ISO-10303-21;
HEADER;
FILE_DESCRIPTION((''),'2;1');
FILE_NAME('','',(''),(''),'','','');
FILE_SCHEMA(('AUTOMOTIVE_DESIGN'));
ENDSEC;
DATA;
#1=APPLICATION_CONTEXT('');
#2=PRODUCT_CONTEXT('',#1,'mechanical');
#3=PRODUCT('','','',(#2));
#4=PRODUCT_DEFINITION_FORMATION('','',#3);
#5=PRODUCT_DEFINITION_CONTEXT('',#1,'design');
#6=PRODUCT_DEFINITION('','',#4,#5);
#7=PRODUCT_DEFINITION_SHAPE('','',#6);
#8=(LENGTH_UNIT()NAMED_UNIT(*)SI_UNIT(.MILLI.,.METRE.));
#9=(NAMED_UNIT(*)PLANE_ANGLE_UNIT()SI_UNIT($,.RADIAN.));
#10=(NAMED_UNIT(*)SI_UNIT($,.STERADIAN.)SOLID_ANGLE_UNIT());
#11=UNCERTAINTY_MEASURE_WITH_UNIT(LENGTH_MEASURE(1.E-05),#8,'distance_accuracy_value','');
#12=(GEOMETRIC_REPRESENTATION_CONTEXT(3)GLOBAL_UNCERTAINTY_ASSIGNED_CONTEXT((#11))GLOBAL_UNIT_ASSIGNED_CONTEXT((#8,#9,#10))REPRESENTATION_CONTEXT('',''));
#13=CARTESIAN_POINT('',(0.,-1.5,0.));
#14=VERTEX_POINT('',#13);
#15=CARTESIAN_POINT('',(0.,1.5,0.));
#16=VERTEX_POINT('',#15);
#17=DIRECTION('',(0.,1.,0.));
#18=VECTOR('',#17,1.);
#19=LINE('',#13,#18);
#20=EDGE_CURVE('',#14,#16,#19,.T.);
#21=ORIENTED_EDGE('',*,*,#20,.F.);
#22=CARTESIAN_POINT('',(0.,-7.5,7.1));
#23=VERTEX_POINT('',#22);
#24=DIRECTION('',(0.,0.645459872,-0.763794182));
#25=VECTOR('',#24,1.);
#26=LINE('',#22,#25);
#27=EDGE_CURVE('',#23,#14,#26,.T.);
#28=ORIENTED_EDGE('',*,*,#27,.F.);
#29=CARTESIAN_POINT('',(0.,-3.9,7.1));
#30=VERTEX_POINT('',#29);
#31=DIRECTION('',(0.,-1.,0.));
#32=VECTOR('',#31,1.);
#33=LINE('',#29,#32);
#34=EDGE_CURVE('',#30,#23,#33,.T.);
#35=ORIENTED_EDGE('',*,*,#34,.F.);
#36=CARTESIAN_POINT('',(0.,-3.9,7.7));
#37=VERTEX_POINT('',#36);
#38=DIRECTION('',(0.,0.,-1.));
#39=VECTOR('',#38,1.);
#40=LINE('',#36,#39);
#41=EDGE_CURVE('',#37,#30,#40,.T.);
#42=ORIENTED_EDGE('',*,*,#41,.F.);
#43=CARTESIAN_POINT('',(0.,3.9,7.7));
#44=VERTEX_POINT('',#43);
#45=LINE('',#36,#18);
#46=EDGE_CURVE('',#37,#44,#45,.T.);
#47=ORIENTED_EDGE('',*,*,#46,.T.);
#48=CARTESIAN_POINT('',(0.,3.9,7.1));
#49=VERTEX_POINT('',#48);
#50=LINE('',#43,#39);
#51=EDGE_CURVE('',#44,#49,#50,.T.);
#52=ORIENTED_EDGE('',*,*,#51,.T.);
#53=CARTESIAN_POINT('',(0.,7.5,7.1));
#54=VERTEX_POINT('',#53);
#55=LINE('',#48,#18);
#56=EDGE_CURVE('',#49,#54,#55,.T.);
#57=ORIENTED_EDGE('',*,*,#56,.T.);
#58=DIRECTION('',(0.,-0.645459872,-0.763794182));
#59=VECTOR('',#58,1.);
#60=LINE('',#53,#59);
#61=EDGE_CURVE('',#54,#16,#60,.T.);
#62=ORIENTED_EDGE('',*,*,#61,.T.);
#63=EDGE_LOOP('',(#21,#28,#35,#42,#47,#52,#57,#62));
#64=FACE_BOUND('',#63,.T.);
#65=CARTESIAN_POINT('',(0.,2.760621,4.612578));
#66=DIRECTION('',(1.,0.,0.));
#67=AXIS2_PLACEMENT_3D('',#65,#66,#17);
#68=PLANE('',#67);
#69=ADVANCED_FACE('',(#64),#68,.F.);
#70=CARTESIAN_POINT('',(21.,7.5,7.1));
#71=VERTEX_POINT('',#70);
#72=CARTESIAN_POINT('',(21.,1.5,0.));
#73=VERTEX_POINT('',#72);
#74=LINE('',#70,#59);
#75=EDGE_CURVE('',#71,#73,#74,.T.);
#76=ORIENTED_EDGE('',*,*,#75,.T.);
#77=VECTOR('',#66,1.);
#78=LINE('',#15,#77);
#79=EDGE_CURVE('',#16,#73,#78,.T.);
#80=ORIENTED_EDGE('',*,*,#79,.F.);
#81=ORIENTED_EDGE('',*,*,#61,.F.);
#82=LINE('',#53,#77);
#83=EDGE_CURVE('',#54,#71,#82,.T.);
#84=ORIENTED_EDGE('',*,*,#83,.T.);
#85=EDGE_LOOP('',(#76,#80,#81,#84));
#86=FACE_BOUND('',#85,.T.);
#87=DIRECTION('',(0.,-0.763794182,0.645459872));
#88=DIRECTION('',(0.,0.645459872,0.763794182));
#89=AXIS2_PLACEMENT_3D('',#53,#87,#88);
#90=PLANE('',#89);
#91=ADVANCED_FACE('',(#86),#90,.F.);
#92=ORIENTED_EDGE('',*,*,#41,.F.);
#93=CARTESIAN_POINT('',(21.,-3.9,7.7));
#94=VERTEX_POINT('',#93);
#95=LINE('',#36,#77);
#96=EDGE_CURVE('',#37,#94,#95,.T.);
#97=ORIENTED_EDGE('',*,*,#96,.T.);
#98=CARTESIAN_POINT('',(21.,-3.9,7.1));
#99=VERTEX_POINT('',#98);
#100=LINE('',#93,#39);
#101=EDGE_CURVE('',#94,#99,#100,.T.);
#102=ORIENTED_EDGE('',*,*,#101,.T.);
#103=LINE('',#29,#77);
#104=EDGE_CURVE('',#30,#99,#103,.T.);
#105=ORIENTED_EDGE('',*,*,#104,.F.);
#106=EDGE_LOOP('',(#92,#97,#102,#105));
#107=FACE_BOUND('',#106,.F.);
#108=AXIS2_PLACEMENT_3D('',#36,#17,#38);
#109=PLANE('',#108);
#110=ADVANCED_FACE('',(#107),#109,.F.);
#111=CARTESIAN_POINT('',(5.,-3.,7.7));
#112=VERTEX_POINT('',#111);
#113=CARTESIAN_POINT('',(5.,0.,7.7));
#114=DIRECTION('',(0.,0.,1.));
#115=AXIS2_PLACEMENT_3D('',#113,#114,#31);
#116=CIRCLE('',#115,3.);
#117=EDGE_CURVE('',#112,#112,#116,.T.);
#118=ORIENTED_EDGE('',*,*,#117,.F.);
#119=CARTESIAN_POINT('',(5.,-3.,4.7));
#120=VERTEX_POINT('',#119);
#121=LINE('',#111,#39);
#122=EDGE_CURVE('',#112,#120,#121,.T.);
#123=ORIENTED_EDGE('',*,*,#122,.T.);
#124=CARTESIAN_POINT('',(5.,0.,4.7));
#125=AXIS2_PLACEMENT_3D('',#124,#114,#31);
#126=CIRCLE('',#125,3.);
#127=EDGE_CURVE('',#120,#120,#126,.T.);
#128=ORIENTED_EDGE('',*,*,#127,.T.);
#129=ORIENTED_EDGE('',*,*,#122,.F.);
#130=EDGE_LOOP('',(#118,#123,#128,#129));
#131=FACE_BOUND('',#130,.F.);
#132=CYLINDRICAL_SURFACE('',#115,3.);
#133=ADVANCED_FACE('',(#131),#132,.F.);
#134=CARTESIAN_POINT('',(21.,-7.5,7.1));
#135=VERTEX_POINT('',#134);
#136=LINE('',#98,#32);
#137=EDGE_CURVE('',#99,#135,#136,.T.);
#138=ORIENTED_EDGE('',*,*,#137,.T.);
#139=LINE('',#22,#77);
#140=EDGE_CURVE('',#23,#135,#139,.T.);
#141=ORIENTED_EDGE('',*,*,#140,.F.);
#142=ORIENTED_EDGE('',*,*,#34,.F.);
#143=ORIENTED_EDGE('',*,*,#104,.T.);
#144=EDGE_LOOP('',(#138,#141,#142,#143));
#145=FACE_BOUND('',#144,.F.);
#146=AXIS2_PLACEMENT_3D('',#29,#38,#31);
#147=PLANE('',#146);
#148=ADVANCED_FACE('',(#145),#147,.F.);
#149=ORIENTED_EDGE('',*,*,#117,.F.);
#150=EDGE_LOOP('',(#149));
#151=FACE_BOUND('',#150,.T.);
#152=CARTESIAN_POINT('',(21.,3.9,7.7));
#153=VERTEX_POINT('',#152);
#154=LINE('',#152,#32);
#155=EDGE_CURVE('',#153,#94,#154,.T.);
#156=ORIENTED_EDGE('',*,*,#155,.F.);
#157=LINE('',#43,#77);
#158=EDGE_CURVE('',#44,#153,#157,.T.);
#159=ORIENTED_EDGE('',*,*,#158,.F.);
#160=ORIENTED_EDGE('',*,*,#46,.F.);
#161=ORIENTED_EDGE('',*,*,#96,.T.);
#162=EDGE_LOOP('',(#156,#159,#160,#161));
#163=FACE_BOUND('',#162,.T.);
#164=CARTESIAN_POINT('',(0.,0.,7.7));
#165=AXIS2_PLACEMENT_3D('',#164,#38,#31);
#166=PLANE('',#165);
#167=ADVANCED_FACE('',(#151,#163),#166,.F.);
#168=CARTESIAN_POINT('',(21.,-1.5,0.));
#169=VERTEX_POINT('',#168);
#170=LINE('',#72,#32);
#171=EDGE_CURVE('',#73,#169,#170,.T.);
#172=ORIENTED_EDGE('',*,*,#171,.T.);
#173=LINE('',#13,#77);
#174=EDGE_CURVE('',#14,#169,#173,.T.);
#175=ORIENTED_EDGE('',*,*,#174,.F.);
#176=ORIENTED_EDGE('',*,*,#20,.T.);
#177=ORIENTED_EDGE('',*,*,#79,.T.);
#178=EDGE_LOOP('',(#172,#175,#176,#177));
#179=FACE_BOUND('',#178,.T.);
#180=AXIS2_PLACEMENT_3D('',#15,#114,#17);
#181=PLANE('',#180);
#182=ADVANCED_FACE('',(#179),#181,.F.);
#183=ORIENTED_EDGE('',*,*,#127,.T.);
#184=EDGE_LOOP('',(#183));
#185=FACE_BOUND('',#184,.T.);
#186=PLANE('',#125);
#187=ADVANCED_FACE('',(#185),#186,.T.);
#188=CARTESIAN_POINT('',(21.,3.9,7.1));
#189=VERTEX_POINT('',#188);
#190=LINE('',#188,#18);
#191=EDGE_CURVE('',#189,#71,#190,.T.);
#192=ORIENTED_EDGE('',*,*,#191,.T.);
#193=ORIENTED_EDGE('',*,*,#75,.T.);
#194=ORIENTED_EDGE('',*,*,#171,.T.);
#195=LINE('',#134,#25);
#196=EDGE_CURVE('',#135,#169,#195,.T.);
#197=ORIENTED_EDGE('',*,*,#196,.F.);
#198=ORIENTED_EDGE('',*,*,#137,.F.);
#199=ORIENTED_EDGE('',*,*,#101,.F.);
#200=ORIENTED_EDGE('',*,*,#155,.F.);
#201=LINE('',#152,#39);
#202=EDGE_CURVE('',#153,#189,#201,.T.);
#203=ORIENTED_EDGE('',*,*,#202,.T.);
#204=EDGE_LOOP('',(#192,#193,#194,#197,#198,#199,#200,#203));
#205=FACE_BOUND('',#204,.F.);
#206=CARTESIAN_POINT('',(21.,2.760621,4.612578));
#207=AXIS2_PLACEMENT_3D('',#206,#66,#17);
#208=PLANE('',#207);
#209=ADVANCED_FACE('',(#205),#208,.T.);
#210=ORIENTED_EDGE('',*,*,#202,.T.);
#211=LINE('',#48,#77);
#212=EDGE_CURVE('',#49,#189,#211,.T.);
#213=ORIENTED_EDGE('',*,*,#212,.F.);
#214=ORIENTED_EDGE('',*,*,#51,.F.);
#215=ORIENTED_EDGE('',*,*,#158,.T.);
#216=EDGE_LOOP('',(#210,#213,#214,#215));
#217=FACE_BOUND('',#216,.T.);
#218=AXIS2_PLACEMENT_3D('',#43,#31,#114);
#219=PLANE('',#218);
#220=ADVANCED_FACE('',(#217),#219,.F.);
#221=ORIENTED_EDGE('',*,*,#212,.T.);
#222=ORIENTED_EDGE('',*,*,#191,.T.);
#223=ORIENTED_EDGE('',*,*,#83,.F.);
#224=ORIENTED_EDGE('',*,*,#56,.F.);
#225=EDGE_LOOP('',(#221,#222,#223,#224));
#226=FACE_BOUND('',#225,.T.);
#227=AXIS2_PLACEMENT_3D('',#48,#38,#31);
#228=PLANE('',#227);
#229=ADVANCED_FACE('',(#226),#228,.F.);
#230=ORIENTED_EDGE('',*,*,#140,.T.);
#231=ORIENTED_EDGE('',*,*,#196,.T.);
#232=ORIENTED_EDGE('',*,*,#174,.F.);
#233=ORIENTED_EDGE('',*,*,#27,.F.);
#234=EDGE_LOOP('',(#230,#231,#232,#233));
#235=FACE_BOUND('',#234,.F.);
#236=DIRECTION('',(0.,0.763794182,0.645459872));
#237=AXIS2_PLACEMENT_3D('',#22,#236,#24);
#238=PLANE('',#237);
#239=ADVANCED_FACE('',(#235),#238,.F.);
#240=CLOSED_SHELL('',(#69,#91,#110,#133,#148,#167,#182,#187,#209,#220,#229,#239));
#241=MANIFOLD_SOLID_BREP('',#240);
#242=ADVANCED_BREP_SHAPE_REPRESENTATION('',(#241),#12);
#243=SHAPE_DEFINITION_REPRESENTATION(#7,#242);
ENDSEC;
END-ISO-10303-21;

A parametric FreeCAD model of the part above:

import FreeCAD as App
import Part
import Sketcher
from FreeCAD import Vector
Q = App.Units.Quantity


def add_polygon(sketch, points):
    """Adds a closed chain of lines whose ends are joined by coincident constraints."""
    first, n = sketch.GeometryCount, len(points)
    for a, b in zip(points, points[1:] + points[:1]):
        sketch.addGeometry(Part.LineSegment(App.Vector(*a, 0), App.Vector(*b, 0)), False)
    for i in range(n):
        sketch.addConstraint(Sketcher.Constraint("Coincident", first + i, 2, first + (i + 1) % n, 1))

doc = App.newDocument("Part")
body = doc.addObject("PartDesign::Body", "Body")

sketch1 = body.newObject("Sketcher::SketchObject", "Sketch")
sketch1.AttachmentSupport = (doc.getObject("YZ_Plane"), [""])
sketch1.MapMode = "FlatFace"
add_polygon(sketch1, [(-7.5, 7.1), (-1.5, 0), (0, 0), (0, 7.7), (-3.9, 7.7), (-3.9, 7.1)])
sketch1.addConstraint(Sketcher.Constraint("Horizontal", 1))
sketch1.addConstraint(Sketcher.Constraint("Vertical", 2))
sketch1.addConstraint(Sketcher.Constraint("Horizontal", 3))
sketch1.addConstraint(Sketcher.Constraint("Vertical", 4))
sketch1.addConstraint(Sketcher.Constraint("Horizontal", 5))
sketch1.addConstraint(Sketcher.Constraint("Coincident", 1, 2, -1, 1))
sketch1.addConstraint(Sketcher.Constraint("DistanceX", 1, 1, 1, 2, Q("1.5 mm")))
sketch1.addConstraint(Sketcher.Constraint("DistanceX", 3, 2, 3, 1, Q("3.9 mm")))
sketch1.addConstraint(Sketcher.Constraint("DistanceX", 5, 2, 5, 1, Q("3.6 mm")))
sketch1.addConstraint(Sketcher.Constraint("DistanceY", 2, 1, 2, 2, Q("7.7 mm")))
sketch1.addConstraint(Sketcher.Constraint("DistanceY", 4, 2, 4, 1, Q("0.6 mm")))
pad1 = body.newObject("PartDesign::Pad", "Pad")
pad1.Profile = sketch1
pad1.Length = 21
doc.recompute()

mirrored = body.newObject("PartDesign::Mirrored", "Mirrored")
mirrored.Originals = [pad1]
mirrored.MirrorPlane = (doc.getObject("XZ_Plane"), [""])
body.Tip = mirrored

sketch2 = body.newObject("Sketcher::SketchObject", "Sketch001")
sketch2.AttachmentSupport = (doc.getObject("XY_Plane"), [""])
sketch2.MapMode = "FlatFace"
sketch2.AttachmentOffset = App.Placement(Vector(0, 0, 7.7), App.Rotation())
sketch2.addGeometry(Part.Circle(Vector(5, 0, 0), Vector(0, 0, 1), 3), False)
sketch2.addConstraint(Sketcher.Constraint("PointOnObject", 0, 3, -1))
sketch2.addConstraint(Sketcher.Constraint("Diameter", 0, Q("6 mm")))
sketch2.addConstraint(Sketcher.Constraint("DistanceX", -1, 1, 0, 3, Q("5 mm")))
pocket1 = body.newObject("PartDesign::Pocket", "Pocket")
pocket1.Profile = sketch2
pocket1.Length = 3

doc.recompute()
